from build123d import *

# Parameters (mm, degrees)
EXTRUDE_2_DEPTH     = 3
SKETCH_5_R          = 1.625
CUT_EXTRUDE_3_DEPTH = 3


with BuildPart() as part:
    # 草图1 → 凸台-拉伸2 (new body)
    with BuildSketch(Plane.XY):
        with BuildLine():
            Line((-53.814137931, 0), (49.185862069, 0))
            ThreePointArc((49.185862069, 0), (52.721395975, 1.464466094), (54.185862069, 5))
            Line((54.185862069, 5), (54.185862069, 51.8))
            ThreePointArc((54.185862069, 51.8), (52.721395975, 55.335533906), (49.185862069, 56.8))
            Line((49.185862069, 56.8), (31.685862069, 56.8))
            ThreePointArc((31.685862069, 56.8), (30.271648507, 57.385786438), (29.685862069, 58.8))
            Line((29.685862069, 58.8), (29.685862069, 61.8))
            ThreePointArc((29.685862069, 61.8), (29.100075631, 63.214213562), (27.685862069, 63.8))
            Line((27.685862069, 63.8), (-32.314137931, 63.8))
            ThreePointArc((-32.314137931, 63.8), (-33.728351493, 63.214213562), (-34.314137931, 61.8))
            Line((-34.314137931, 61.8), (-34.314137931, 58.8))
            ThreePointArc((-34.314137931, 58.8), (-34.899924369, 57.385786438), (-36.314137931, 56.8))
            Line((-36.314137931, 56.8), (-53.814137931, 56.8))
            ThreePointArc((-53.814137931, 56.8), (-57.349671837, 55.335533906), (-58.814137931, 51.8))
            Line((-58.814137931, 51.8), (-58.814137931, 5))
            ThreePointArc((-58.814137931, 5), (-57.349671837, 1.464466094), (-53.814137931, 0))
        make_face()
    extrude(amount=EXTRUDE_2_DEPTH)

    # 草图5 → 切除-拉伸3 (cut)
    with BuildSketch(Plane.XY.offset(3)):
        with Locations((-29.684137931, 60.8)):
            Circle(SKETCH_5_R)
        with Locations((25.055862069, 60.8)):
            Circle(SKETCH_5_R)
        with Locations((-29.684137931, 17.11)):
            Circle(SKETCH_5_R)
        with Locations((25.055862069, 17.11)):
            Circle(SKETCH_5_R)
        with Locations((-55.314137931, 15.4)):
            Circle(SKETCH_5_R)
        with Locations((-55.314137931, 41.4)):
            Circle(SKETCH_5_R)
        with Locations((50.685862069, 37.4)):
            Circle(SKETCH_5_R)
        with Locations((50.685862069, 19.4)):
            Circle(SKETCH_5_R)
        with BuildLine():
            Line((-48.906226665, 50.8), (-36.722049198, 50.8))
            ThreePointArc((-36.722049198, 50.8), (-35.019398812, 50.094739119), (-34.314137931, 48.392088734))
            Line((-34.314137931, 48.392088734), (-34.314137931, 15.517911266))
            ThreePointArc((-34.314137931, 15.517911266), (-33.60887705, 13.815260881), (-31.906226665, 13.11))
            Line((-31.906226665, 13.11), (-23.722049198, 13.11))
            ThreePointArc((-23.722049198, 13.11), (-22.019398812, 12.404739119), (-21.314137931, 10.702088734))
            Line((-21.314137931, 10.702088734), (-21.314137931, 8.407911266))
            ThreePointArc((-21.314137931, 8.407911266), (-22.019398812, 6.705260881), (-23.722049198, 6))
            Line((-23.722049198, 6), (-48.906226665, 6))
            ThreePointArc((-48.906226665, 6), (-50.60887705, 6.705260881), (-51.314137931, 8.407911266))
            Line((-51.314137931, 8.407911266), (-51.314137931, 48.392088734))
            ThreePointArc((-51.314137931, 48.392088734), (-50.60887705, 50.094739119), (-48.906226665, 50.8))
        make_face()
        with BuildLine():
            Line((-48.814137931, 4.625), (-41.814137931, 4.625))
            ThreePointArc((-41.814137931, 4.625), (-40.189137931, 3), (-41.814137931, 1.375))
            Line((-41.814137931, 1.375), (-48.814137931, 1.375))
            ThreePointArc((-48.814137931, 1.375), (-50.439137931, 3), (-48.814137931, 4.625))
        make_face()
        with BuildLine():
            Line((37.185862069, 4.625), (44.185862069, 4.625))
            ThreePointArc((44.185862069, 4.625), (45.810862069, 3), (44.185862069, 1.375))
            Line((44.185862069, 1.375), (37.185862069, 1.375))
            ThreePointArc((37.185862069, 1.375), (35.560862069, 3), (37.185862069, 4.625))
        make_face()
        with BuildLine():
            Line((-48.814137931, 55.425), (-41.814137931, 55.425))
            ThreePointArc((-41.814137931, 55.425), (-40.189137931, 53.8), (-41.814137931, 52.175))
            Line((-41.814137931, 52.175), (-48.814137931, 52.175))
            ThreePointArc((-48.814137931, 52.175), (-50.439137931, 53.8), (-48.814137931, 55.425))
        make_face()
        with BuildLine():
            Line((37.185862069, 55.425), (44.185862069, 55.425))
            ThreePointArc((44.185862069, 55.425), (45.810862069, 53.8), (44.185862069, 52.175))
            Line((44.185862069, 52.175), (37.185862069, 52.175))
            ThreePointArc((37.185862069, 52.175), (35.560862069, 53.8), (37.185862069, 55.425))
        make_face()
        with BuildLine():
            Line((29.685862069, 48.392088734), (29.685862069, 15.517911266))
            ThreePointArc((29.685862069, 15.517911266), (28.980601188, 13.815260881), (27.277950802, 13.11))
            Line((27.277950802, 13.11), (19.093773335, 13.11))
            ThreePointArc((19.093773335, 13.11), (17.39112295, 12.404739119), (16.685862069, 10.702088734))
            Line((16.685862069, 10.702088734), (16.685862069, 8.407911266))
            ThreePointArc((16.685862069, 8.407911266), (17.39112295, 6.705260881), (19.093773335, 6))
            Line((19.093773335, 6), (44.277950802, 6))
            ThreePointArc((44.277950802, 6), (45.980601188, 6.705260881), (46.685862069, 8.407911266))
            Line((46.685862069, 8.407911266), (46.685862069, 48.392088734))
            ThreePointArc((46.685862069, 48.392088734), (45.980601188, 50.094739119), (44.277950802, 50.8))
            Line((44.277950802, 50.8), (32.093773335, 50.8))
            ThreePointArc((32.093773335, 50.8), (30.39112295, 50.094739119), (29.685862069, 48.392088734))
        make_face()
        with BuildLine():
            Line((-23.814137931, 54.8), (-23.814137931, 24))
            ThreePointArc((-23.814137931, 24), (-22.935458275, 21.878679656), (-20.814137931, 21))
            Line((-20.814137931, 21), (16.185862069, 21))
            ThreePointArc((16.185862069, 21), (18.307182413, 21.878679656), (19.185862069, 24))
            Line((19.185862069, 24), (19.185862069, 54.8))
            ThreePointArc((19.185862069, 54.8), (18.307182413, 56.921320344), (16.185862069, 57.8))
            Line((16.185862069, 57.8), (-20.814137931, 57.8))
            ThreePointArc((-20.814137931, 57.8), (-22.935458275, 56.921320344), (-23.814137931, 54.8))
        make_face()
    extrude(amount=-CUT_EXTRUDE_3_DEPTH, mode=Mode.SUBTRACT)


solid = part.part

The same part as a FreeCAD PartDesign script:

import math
import FreeCAD as App
import Part
import Sketcher
from FreeCAD import Vector

doc = App.newDocument("Part")
params = doc.addObject("Spreadsheet::Sheet", "Params")
for row, (alias, value) in enumerate([
    ("sketch1_radius", "5 mm"),
    ("sketch1_radius2", "2 mm"),
    ("sketch1_width", "103 mm"),
    ("sketch1_width2", "60 mm"),
    ("sketch1_height", "3 mm"),
    ("pad1_length", "3 mm"),
    ("sketch2_radius", "3 mm"),
    ("sketch2_diameter", "3.25 mm"),
    ("sketch2_width", "7 mm"),
    ("sketch2_width2", "37 mm"),
    ("sketch2_height", "30.8 mm"),
    ("pocket1_length", "3 mm"),
], start=1):
    params.set(f"A{row}", alias)
    params.set(f"B{row}", "=" + value)
    params.setAlias(f"B{row}", alias)

body = doc.addObject("PartDesign::Body", "Body")

# Sketch on XY plane
sketch1 = body.newObject("Sketcher::SketchObject", "Sketch")
sketch1.AttachmentSupport = (doc.getObject("XY_Plane"), [""])
sketch1.MapMode = "FlatFace"
sketch1.addGeometry([
    Part.LineSegment(Vector(-53.8, 0, 0), Vector(49.2, 0, 0)),  # 0
    Part.ArcOfCircle(Part.Circle(Vector(49.2, 5, 0), Vector(0, 0, 1), 5), math.radians(-90), math.radians(0)),  # 1
    Part.LineSegment(Vector(54.2, 5, 0), Vector(54.2, 51.8, 0)),  # 2
    Part.ArcOfCircle(Part.Circle(Vector(49.2, 51.8, 0), Vector(0, 0, 1), 5), math.radians(0), math.radians(90)),  # 3
    Part.LineSegment(Vector(49.2, 56.8, 0), Vector(31.7, 56.8, 0)),  # 4
    Part.ArcOfCircle(Part.Circle(Vector(31.7, 58.8, 0), Vector(0, 0, 1), 2), math.radians(-180), math.radians(-90)),  # 5
    Part.LineSegment(Vector(29.7, 58.8, 0), Vector(29.7, 61.8, 0)),  # 6
    Part.ArcOfCircle(Part.Circle(Vector(27.7, 61.8, 0), Vector(0, 0, 1), 2), math.radians(0), math.radians(90)),  # 7
    Part.LineSegment(Vector(27.7, 63.8, 0), Vector(-32.3, 63.8, 0)),  # 8
    Part.ArcOfCircle(Part.Circle(Vector(-32.3, 61.8, 0), Vector(0, 0, 1), 2), math.radians(90), math.radians(180)),  # 9
    Part.LineSegment(Vector(-34.3, 61.8, 0), Vector(-34.3, 58.8, 0)),  # 10
    Part.ArcOfCircle(Part.Circle(Vector(-36.3, 58.8, 0), Vector(0, 0, 1), 2), math.radians(-90), math.radians(0)),  # 11
    Part.LineSegment(Vector(-36.3, 56.8, 0), Vector(-53.8, 56.8, 0)),  # 12
    Part.ArcOfCircle(Part.Circle(Vector(-53.8, 51.8, 0), Vector(0, 0, 1), 5), math.radians(90), math.radians(180)),  # 13
    Part.LineSegment(Vector(-58.8, 51.8, 0), Vector(-58.8, 5, 0)),  # 14
    Part.ArcOfCircle(Part.Circle(Vector(-53.8, 5, 0), Vector(0, 0, 1), 5), math.radians(180), math.radians(270)),  # 15
], False)
sketch1.addConstraint([
    Sketcher.Constraint("Tangent", 0, 2, 1, 1),
    Sketcher.Constraint("Tangent", 1, 2, 2, 1),
    Sketcher.Constraint("Tangent", 2, 2, 3, 1),
    Sketcher.Constraint("Tangent", 3, 2, 4, 1),
    Sketcher.Constraint("Tangent", 4, 2, 5, 2),
    Sketcher.Constraint("Tangent", 5, 1, 6, 1),
    Sketcher.Constraint("Tangent", 6, 2, 7, 1),
    Sketcher.Constraint("Tangent", 7, 2, 8, 1),
    Sketcher.Constraint("Tangent", 8, 2, 9, 1),
    Sketcher.Constraint("Tangent", 9, 2, 10, 1),
    Sketcher.Constraint("Tangent", 10, 2, 11, 2),
    Sketcher.Constraint("Tangent", 11, 1, 12, 1),
    Sketcher.Constraint("Tangent", 12, 2, 13, 1),
    Sketcher.Constraint("Tangent", 13, 2, 14, 1),
    Sketcher.Constraint("Tangent", 14, 2, 15, 1),
    Sketcher.Constraint("Tangent", 15, 2, 0, 1),
    Sketcher.Constraint("Horizontal", 0),
    Sketcher.Constraint("Vertical", 2),
    Sketcher.Constraint("Horizontal", 4),
    Sketcher.Constraint("Vertical", 6),
    Sketcher.Constraint("Horizontal", 8),
    Sketcher.Constraint("Vertical", 10),
    Sketcher.Constraint("Horizontal", 12),
    Sketcher.Constraint("Vertical", 14),
    Sketcher.Constraint("Equal", 1, 3),
    Sketcher.Constraint("Equal", 5, 7),
    Sketcher.Constraint("Equal", 7, 9),
    Sketcher.Constraint("Equal", 9, 11),
    Sketcher.Constraint("Equal", 3, 13),
    Sketcher.Constraint("Equal", 13, 15),
    Sketcher.Constraint("PointOnObject", 0, 2, -1),
    Sketcher.Constraint("Horizontal", 5, 3, 11, 3),
    Sketcher.Constraint("Equal", 4, 12),
    Sketcher.Constraint("Radius", 1, 5.0),
    Sketcher.Constraint("Radius", 5, 2.0),
    Sketcher.Constraint("DistanceX", 0, 1, 0, 2, 103.0),
    Sketcher.Constraint("DistanceX", 8, 2, 8, 1, 60.0),
    Sketcher.Constraint("DistanceY", 6, 1, 6, 2, 3.0),
    Sketcher.Constraint("DistanceY", 2, 1, 2, 2, 46.8),
    Sketcher.Constraint("DistanceX", -1, 1, 1, 3, 49.185862),
])
sketch1.setExpression("Constraints[33]", "Params.sketch1_radius")
sketch1.setExpression("Constraints[34]", "Params.sketch1_radius2")
sketch1.setExpression("Constraints[35]", "Params.sketch1_width")
sketch1.setExpression("Constraints[36]", "Params.sketch1_width2")
sketch1.setExpression("Constraints[37]", "Params.sketch1_height")
pad1 = body.newObject("PartDesign::Pad", "Pad")
pad1.Profile = sketch1
pad1.setExpression("Length", "Params.pad1_length")

# Sketch on XY plane
sketch2 = body.newObject("Sketcher::SketchObject", "Sketch001")
sketch2.AttachmentSupport = (doc.getObject("XY_Plane"), [""])
sketch2.MapMode = "FlatFace"
sketch2.AttachmentOffset = App.Placement(Vector(0, 0, 3), App.Rotation())
sketch2.addGeometry([
    Part.Circle(Vector(-29.7, 60.8, 0), Vector(0, 0, 1), 1.6),  # 0
    Part.Circle(Vector(25.1, 60.8, 0), Vector(0, 0, 1), 1.6),  # 1
    Part.Circle(Vector(-29.7, 17.1, 0), Vector(0, 0, 1), 1.6),  # 2
    Part.Circle(Vector(25.1, 17.1, 0), Vector(0, 0, 1), 1.6),  # 3
    Part.Circle(Vector(-55.3, 15.4, 0), Vector(0, 0, 1), 1.6),  # 4
    Part.Circle(Vector(-55.3, 41.4, 0), Vector(0, 0, 1), 1.6),  # 5
    Part.Circle(Vector(50.7, 37.4, 0), Vector(0, 0, 1), 1.6),  # 6
    Part.Circle(Vector(50.7, 19.4, 0), Vector(0, 0, 1), 1.6),  # 7
    Part.LineSegment(Vector(-36.7, 50.8, 0), Vector(-48.9, 50.8, 0)),  # 8
    Part.ArcOfCircle(Part.Circle(Vector(-48.9, 48.4, 0), Vector(0, 0, 1), 2.4), math.radians(90), math.radians(180)),  # 9
    Part.LineSegment(Vector(-51.3, 48.4, 0), Vector(-51.3, 8.4, 0)),  # 10
    Part.ArcOfCircle(Part.Circle(Vector(-48.9, 8.4, 0), Vector(0, 0, 1), 2.4), math.radians(180), math.radians(270)),  # 11
    Part.LineSegment(Vector(-48.9, 6, 0), Vector(-23.7, 6, 0)),  # 12
    Part.ArcOfCircle(Part.Circle(Vector(-23.7, 8.4, 0), Vector(0, 0, 1), 2.4), math.radians(-90), math.radians(0)),  # 13
    Part.LineSegment(Vector(-21.3, 8.4, 0), Vector(-21.3, 10.7, 0)),  # 14
    Part.ArcOfCircle(Part.Circle(Vector(-23.7, 10.7, 0), Vector(0, 0, 1), 2.4), math.radians(0), math.radians(90)),  # 15
    Part.LineSegment(Vector(-23.7, 13.1, 0), Vector(-31.9, 13.1, 0)),  # 16
    Part.ArcOfCircle(Part.Circle(Vector(-31.9, 15.5, 0), Vector(0, 0, 1), 2.4), math.radians(180), math.radians(270)),  # 17
    Part.LineSegment(Vector(-34.3, 15.5, 0), Vector(-34.3, 48.4, 0)),  # 18
    Part.ArcOfCircle(Part.Circle(Vector(-36.7, 48.4, 0), Vector(0, 0, 1), 2.4), math.radians(0), math.radians(90)),  # 19
    Part.LineSegment(Vector(-41.8, 4.6, 0), Vector(-48.8, 4.6, 0)),  # 20
    Part.ArcOfCircle(Part.Circle(Vector(-48.8, 3, 0), Vector(0, 0, 1), 1.6), math.radians(90), math.radians(270)),  # 21
    Part.LineSegment(Vector(-48.8, 1.4, 0), Vector(-41.8, 1.4, 0)),  # 22
    Part.ArcOfCircle(Part.Circle(Vector(-41.8, 3, 0), Vector(0, 0, 1), 1.6), math.radians(-90), math.radians(90)),  # 23
    Part.LineSegment(Vector(44.2, 4.6, 0), Vector(37.2, 4.6, 0)),  # 24
    Part.ArcOfCircle(Part.Circle(Vector(37.2, 3, 0), Vector(0, 0, 1), 1.6), math.radians(90), math.radians(270)),  # 25
    Part.LineSegment(Vector(37.2, 1.4, 0), Vector(44.2, 1.4, 0)),  # 26
    Part.ArcOfCircle(Part.Circle(Vector(44.2, 3, 0), Vector(0, 0, 1), 1.6), math.radians(-90), math.radians(90)),  # 27
    Part.LineSegment(Vector(-41.8, 55.4, 0), Vector(-48.8, 55.4, 0)),  # 28
    Part.ArcOfCircle(Part.Circle(Vector(-48.8, 53.8, 0), Vector(0, 0, 1), 1.6), math.radians(90), math.radians(270)),  # 29
    Part.LineSegment(Vector(-48.8, 52.2, 0), Vector(-41.8, 52.2, 0)),  # 30
    Part.ArcOfCircle(Part.Circle(Vector(-41.8, 53.8, 0), Vector(0, 0, 1), 1.6), math.radians(-90), math.radians(90)),  # 31
    Part.LineSegment(Vector(44.2, 55.4, 0), Vector(37.2, 55.4, 0)),  # 32
    Part.ArcOfCircle(Part.Circle(Vector(37.2, 53.8, 0), Vector(0, 0, 1), 1.6), math.radians(90), math.radians(270)),  # 33
    Part.LineSegment(Vector(37.2, 52.2, 0), Vector(44.2, 52.2, 0)),  # 34
    Part.ArcOfCircle(Part.Circle(Vector(44.2, 53.8, 0), Vector(0, 0, 1), 1.6), math.radians(-90), math.radians(90)),  # 35
    Part.LineSegment(Vector(29.7, 48.4, 0), Vector(29.7, 15.5, 0)),  # 36
    Part.ArcOfCircle(Part.Circle(Vector(27.3, 15.5, 0), Vector(0, 0, 1), 2.4), math.radians(-90), math.radians(0)),  # 37
    Part.LineSegment(Vector(27.3, 13.1, 0), Vector(19.1, 13.1, 0)),  # 38
    Part.ArcOfCircle(Part.Circle(Vector(19.1, 10.7, 0), Vector(0, 0, 1), 2.4), math.radians(90), math.radians(180)),  # 39
    Part.LineSegment(Vector(16.7, 10.7, 0), Vector(16.7, 8.4, 0)),  # 40
    Part.ArcOfCircle(Part.Circle(Vector(19.1, 8.4, 0), Vector(0, 0, 1), 2.4), math.radians(180), math.radians(270)),  # 41
    Part.LineSegment(Vector(19.1, 6, 0), Vector(44.3, 6, 0)),  # 42
    Part.ArcOfCircle(Part.Circle(Vector(44.3, 8.4, 0), Vector(0, 0, 1), 2.4), math.radians(-90), math.radians(0)),  # 43
    Part.LineSegment(Vector(46.7, 8.4, 0), Vector(46.7, 48.4, 0)),  # 44
    Part.ArcOfCircle(Part.Circle(Vector(44.3, 48.4, 0), Vector(0, 0, 1), 2.4), math.radians(0), math.radians(90)),  # 45
    Part.LineSegment(Vector(44.3, 50.8, 0), Vector(32.1, 50.8, 0)),  # 46
    Part.ArcOfCircle(Part.Circle(Vector(32.1, 48.4, 0), Vector(0, 0, 1), 2.4), math.radians(90), math.radians(180)),  # 47
    Part.LineSegment(Vector(-23.8, 54.8, 0), Vector(-23.8, 24, 0)),  # 48
    Part.ArcOfCircle(Part.Circle(Vector(-20.8, 24, 0), Vector(0, 0, 1), 3), math.radians(180), math.radians(270)),  # 49
    Part.LineSegment(Vector(-20.8, 21, 0), Vector(16.2, 21, 0)),  # 50
    Part.ArcOfCircle(Part.Circle(Vector(16.2, 24, 0), Vector(0, 0, 1), 3), math.radians(-90), math.radians(0)),  # 51
    Part.LineSegment(Vector(19.2, 24, 0), Vector(19.2, 54.8, 0)),  # 52
    Part.ArcOfCircle(Part.Circle(Vector(16.2, 54.8, 0), Vector(0, 0, 1), 3), math.radians(0), math.radians(90)),  # 53
    Part.LineSegment(Vector(16.2, 57.8, 0), Vector(-20.8, 57.8, 0)),  # 54
    Part.ArcOfCircle(Part.Circle(Vector(-20.8, 54.8, 0), Vector(0, 0, 1), 3), math.radians(90), math.radians(180)),  # 55
], False)
sketch2.addConstraint([
    Sketcher.Constraint("Tangent", 8, 2, 9, 1),
    Sketcher.Constraint("Tangent", 9, 2, 10, 1),
    Sketcher.Constraint("Tangent", 10, 2, 11, 1),
    Sketcher.Constraint("Tangent", 11, 2, 12, 1),
    Sketcher.Constraint("Tangent", 12, 2, 13, 1),
    Sketcher.Constraint("Tangent", 13, 2, 14, 1),
    Sketcher.Constraint("Tangent", 14, 2, 15, 1),
    Sketcher.Constraint("Tangent", 15, 2, 16, 1),
    Sketcher.Constraint("Tangent", 16, 2, 17, 2),
    Sketcher.Constraint("Tangent", 17, 1, 18, 1),
    Sketcher.Constraint("Tangent", 18, 2, 19, 1),
    Sketcher.Constraint("Tangent", 19, 2, 8, 1),
    Sketcher.Constraint("Tangent", 20, 2, 21, 1),
    Sketcher.Constraint("Tangent", 21, 2, 22, 1),
    Sketcher.Constraint("Tangent", 22, 2, 23, 1),
    Sketcher.Constraint("Tangent", 23, 2, 20, 1),
    Sketcher.Constraint("Tangent", 24, 2, 25, 1),
    Sketcher.Constraint("Tangent", 25, 2, 26, 1),
    Sketcher.Constraint("Tangent", 26, 2, 27, 1),
    Sketcher.Constraint("Tangent", 27, 2, 24, 1),
    Sketcher.Constraint("Tangent", 28, 2, 29, 1),
    Sketcher.Constraint("Tangent", 29, 2, 30, 1),
    Sketcher.Constraint("Tangent", 30, 2, 31, 1),
    Sketcher.Constraint("Tangent", 31, 2, 28, 1),
    Sketcher.Constraint("Tangent", 32, 2, 33, 1),
    Sketcher.Constraint("Tangent", 33, 2, 34, 1),
    Sketcher.Constraint("Tangent", 34, 2, 35, 1),
    Sketcher.Constraint("Tangent", 35, 2, 32, 1),
    Sketcher.Constraint("Tangent", 36, 2, 37, 2),
    Sketcher.Constraint("Tangent", 37, 1, 38, 1),
    Sketcher.Constraint("Tangent", 38, 2, 39, 1),
    Sketcher.Constraint("Tangent", 39, 2, 40, 1),
    Sketcher.Constraint("Tangent", 40, 2, 41, 1),
    Sketcher.Constraint("Tangent", 41, 2, 42, 1),
    Sketcher.Constraint("Tangent", 42, 2, 43, 1),
    Sketcher.Constraint("Tangent", 43, 2, 44, 1),
    Sketcher.Constraint("Tangent", 44, 2, 45, 1),
    Sketcher.Constraint("Tangent", 45, 2, 46, 1),
    Sketcher.Constraint("Tangent", 46, 2, 47, 1),
    Sketcher.Constraint("Tangent", 47, 2, 36, 1),
    Sketcher.Constraint("Tangent", 48, 2, 49, 1),
    Sketcher.Constraint("Tangent", 49, 2, 50, 1),
    Sketcher.Constraint("Tangent", 50, 2, 51, 1),
    Sketcher.Constraint("Tangent", 51, 2, 52, 1),
    Sketcher.Constraint("Tangent", 52, 2, 53, 1),
    Sketcher.Constraint("Tangent", 53, 2, 54, 1),
    Sketcher.Constraint("Tangent", 54, 2, 55, 1),
    Sketcher.Constraint("Tangent", 55, 2, 48, 1),
    Sketcher.Constraint("Horizontal", 8),
    Sketcher.Constraint("Vertical", 10),
    Sketcher.Constraint("Horizontal", 12),
    Sketcher.Constraint("Vertical", 14),
    Sketcher.Constraint("Horizontal", 16),
    Sketcher.Constraint("Vertical", 18),
    Sketcher.Constraint("Horizontal", 20),
    Sketcher.Constraint("Horizontal", 22),
    Sketcher.Constraint("Horizontal", 24),
    Sketcher.Constraint("Horizontal", 26),
    Sketcher.Constraint("Horizontal", 28),
    Sketcher.Constraint("Horizontal", 30),
    Sketcher.Constraint("Horizontal", 32),
    Sketcher.Constraint("Horizontal", 34),
    Sketcher.Constraint("Vertical", 36),
    Sketcher.Constraint("Horizontal", 38),
    Sketcher.Constraint("Vertical", 40),
    Sketcher.Constraint("Horizontal", 42),
    Sketcher.Constraint("Vertical", 44),
    Sketcher.Constraint("Horizontal", 46),
    Sketcher.Constraint("Vertical", 48),
    Sketcher.Constraint("Horizontal", 50),
    Sketcher.Constraint("Vertical", 52),
    Sketcher.Constraint("Horizontal", 54),
    Sketcher.Constraint("Equal", 0, 1),
    Sketcher.Constraint("Equal", 1, 2),
    Sketcher.Constraint("Equal", 2, 3),
    Sketcher.Constraint("Equal", 3, 4),
    Sketcher.Constraint("Equal", 4, 5),
    Sketcher.Constraint("Equal", 5, 6),
    Sketcher.Constraint("Equal", 6, 7),
    Sketcher.Constraint("Equal", 9, 11),
    Sketcher.Constraint("Equal", 11, 13),
    Sketcher.Constraint("Equal", 13, 15),
    Sketcher.Constraint("Equal", 15, 17),
    Sketcher.Constraint("Equal", 17, 19),
    Sketcher.Constraint("Equal", 7, 21),
    Sketcher.Constraint("Equal", 23, 25),
    Sketcher.Constraint("Equal", 27, 29),
    Sketcher.Constraint("Equal", 31, 33),
    Sketcher.Constraint("Equal", 19, 37),
    Sketcher.Constraint("Equal", 37, 39),
    Sketcher.Constraint("Equal", 39, 41),
    Sketcher.Constraint("Equal", 41, 43),
    Sketcher.Constraint("Equal", 43, 45),
    Sketcher.Constraint("Equal", 45, 47),
    Sketcher.Constraint("Equal", 49, 51),
    Sketcher.Constraint("Equal", 51, 53),
    Sketcher.Constraint("Equal", 53, 55),
    Sketcher.Constraint("Horizontal", 0, 3, 1, 3),
    Sketcher.Constraint("Horizontal", 2, 3, 3, 3),
    Sketcher.Constraint("Horizontal", 23, 3, 25, 3),
    Sketcher.Constraint("Horizontal", 31, 3, 33, 3),
    Sketcher.Constraint("Horizontal", 17, 3, 37, 3),
    Sketcher.Constraint("Horizontal", 13, 3, 41, 3),
    Sketcher.Constraint("Horizontal", 19, 3, 45, 3),
    Sketcher.Constraint("Vertical", 0, 3, 2, 3),
    Sketcher.Constraint("Vertical", 1, 3, 3, 3),
    Sketcher.Constraint("Vertical", 4, 3, 5, 3),
    Sketcher.Constraint("Vertical", 6, 3, 7, 3),
    Sketcher.Constraint("Vertical", 21, 3, 29, 3),
    Sketcher.Constraint("Vertical", 23, 3, 31, 3),
    Sketcher.Constraint("Vertical", 25, 3, 33, 3),
    Sketcher.Constraint("Vertical", 27, 3, 35, 3),
    Sketcher.Constraint("Equal", 22, 24),
    Sketcher.Constraint("Equal", 16, 38),
    Sketcher.Constraint("Equal", 12, 42),
    Sketcher.Constraint("Radius", 49, 3.0),
    Sketcher.Constraint("Diameter", 0, 3.25),
    Sketcher.Constraint("DistanceX", 20, 2, 20, 1, 7.0),
    Sketcher.Constraint("DistanceX", 50, 1, 50, 2, 37.0),
    Sketcher.Constraint("DistanceY", 48, 2, 48, 1, 30.8),
    Sketcher.Constraint("DistanceY", -1, 1, 21, 3, 3.0),
    Sketcher.Constraint("DistanceY", -1, 1, 49, 3, 24.0),
    Sketcher.Constraint("DistanceY", -1, 1, 11, 2, 6.0),
    Sketcher.Constraint("DistanceY", -1, 1, 0, 3, 60.8),
    Sketcher.Constraint("DistanceY", -1, 1, 4, 3, 15.4),
    Sketcher.Constraint("DistanceY", -1, 1, 5, 3, 41.4),
    Sketcher.Constraint("DistanceY", -1, 1, 6, 3, 37.4),
    Sketcher.Constraint("DistanceY", -1, 1, 7, 3, 19.4),
    Sketcher.Constraint("DistanceY", -1, 1, 29, 3, 53.8),
    Sketcher.Constraint("DistanceY", -1, 1, 8, 2, 50.8),
    Sketcher.Constraint("DistanceY", -1, 1, 2, 3, 17.11),
    Sketcher.Constraint("DistanceY", -1, 1, 15, 2, 13.11),
    Sketcher.Constraint("Radius", 9, 2.407911),
    Sketcher.Constraint("DistanceX", 8, 2, 8, 1, 12.184177),
    Sketcher.Constraint("DistanceX", 12, 1, 12, 2, 25.184177),
    Sketcher.Constraint("DistanceX", 13, 3, -1, 1, 23.722049),
    Sketcher.Constraint("DistanceX", -1, 1, 37, 3, 27.277951),
    Sketcher.Constraint("DistanceX", 0, 3, -1, 1, 29.684138),
    Sketcher.Constraint("DistanceX", -1, 1, 1, 3, 25.055862),
    Sketcher.Constraint("DistanceX", 4, 3, -1, 1, 55.314138),
    Sketcher.Constraint("DistanceX", -1, 1, 6, 3, 50.685862),
    Sketcher.Constraint("DistanceX", 21, 3, -1, 1, 48.814138),
    Sketcher.Constraint("DistanceX", -1, 1, 25, 3, 37.185862),
    Sketcher.Constraint("DistanceX", 49, 3, -1, 1, 20.814138),
])
sketch2.setExpression("Constraints[115]", "Params.sketch2_radius")
sketch2.setExpression("Constraints[116]", "Params.sketch2_diameter")
sketch2.setExpression("Constraints[117]", "Params.sketch2_width")
sketch2.setExpression("Constraints[118]", "Params.sketch2_width2")
sketch2.setExpression("Constraints[119]", "Params.sketch2_height")
pocket1 = body.newObject("PartDesign::Pocket", "Pocket")
pocket1.Profile = sketch2
pocket1.setExpression("Length", "Params.pocket1_length")

doc.recompute()
